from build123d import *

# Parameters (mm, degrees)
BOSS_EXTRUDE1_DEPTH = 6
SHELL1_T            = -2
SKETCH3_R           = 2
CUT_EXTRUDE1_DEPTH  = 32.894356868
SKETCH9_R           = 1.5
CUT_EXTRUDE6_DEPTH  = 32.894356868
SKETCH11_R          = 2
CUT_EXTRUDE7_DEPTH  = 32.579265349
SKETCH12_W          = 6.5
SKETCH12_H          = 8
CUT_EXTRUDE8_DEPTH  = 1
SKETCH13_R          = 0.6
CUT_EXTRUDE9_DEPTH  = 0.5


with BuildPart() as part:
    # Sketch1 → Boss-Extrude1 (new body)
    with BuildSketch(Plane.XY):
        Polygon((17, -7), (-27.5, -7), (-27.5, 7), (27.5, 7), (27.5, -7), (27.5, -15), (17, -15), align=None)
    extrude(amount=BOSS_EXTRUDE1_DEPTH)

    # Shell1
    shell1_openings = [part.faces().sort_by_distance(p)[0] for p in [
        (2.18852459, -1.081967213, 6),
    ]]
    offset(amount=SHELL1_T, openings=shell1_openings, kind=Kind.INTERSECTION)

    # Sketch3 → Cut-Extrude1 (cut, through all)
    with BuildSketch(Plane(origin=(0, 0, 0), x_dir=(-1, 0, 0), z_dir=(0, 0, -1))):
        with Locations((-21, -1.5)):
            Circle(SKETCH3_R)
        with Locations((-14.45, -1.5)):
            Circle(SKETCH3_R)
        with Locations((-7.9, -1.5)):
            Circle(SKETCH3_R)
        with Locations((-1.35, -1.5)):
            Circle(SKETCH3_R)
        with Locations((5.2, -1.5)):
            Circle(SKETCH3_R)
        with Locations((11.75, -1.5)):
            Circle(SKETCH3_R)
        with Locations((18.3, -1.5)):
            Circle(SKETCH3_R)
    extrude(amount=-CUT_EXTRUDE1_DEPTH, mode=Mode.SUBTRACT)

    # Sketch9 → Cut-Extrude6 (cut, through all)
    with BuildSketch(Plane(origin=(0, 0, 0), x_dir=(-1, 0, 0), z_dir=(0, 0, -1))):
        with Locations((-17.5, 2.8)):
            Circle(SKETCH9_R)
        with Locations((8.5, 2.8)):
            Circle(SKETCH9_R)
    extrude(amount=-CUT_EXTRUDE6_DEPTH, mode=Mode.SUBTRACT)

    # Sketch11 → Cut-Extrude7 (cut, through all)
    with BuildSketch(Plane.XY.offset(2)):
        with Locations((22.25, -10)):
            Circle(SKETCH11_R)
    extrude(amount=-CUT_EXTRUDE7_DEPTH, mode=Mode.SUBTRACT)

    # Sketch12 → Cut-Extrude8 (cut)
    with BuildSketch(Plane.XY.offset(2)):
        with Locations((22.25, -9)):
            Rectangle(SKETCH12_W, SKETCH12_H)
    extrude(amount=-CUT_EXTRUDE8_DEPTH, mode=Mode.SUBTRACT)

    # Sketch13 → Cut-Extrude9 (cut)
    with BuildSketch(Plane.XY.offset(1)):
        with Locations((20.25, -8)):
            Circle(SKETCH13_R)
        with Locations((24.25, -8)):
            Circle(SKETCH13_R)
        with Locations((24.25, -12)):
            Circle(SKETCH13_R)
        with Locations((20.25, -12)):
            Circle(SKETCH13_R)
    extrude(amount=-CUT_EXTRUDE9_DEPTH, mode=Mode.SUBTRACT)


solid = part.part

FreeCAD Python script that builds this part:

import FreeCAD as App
import Part
import Sketcher
Q = App.Units.Quantity


def faces_at(feature, points):
    """Names of the faces that lie closest to the given points."""
    faces = feature.Shape.Faces
    near = lambda p: min(range(len(faces)), key=lambda i: faces[i].distToShape(Part.Vertex(*p))[0])
    return sorted({f"Face{near(p) + 1}" for p in points})

doc = App.newDocument("Part")
body = doc.addObject("PartDesign::Body", "Body")

sketch1 = doc.addObject("Sketcher::SketchObject", "Sketch")
body.addObject(sketch1)
sketch1.AttachmentSupport = (doc.XY_Plane, [""])
sketch1.MapMode = "FlatFace"
sketch1.addGeometry(Part.LineSegment(App.Vector(-27.5, -7, 0), App.Vector(17, -7, 0)), False)
sketch1.addGeometry(Part.LineSegment(App.Vector(17, -7, 0), App.Vector(17, -15, 0)), False)
sketch1.addGeometry(Part.LineSegment(App.Vector(17, -15, 0), App.Vector(27.5, -15, 0)), False)
sketch1.addGeometry(Part.LineSegment(App.Vector(27.5, -15, 0), App.Vector(27.5, 7, 0)), False)
sketch1.addGeometry(Part.LineSegment(App.Vector(27.5, 7, 0), App.Vector(-27.5, 7, 0)), False)
sketch1.addGeometry(Part.LineSegment(App.Vector(-27.5, 7, 0), App.Vector(-27.5, -7, 0)), False)
sketch1.addConstraint(Sketcher.Constraint("Coincident", 0, 2, 1, 1))
sketch1.addConstraint(Sketcher.Constraint("Coincident", 1, 2, 2, 1))
sketch1.addConstraint(Sketcher.Constraint("Coincident", 2, 2, 3, 1))
sketch1.addConstraint(Sketcher.Constraint("Coincident", 3, 2, 4, 1))
sketch1.addConstraint(Sketcher.Constraint("Coincident", 4, 2, 5, 1))
sketch1.addConstraint(Sketcher.Constraint("Coincident", 5, 2, 0, 1))
sketch1.addConstraint(Sketcher.Constraint("Horizontal", 0))
sketch1.addConstraint(Sketcher.Constraint("Vertical", 1))
sketch1.addConstraint(Sketcher.Constraint("Horizontal", 2))
sketch1.addConstraint(Sketcher.Constraint("Vertical", 3))
sketch1.addConstraint(Sketcher.Constraint("Horizontal", 4))
sketch1.addConstraint(Sketcher.Constraint("Vertical", 5))
sketch1.addConstraint(Sketcher.Constraint("Symmetric", 3, 2, 5, 2, -1, 1))
sketch1.addConstraint(Sketcher.Constraint("DistanceX", 4, 2, 4, 1, Q("55 mm")))
sketch1.addConstraint(Sketcher.Constraint("DistanceY", 1, 2, 1, 1, Q("8 mm")))
sketch1.addConstraint(Sketcher.Constraint("DistanceY", 3, 1, 3, 2, Q("22 mm")))
sketch1.addConstraint(Sketcher.Constraint("DistanceX", 0, 1, 0, 2, Q("44.5 mm")))
pad1 = doc.addObject("PartDesign::Pad", "Pad")
body.addObject(pad1)
pad1.Profile = sketch1
pad1.Length = 6
doc.recompute()

thickness = doc.addObject("PartDesign::Thickness", "Thickness")
body.addObject(thickness)
thickness.Base = (pad1, faces_at(pad1, [(0, -4, 6)]))
thickness.Value = 2
thickness.Reversed = True
thickness.Join = "Intersection"

sketch2 = doc.addObject("Sketcher::SketchObject", "Sketch001")
body.addObject(sketch2)
sketch2.AttachmentSupport = (doc.XY_Plane, [""])
sketch2.MapMode = "FlatFace"
sketch2.addGeometry(Part.Circle(App.Vector(21, -1.5, 0), App.Vector(0, 0, 1), 2), False)
sketch2.addGeometry(Part.Circle(App.Vector(14.45, -1.5, 0), App.Vector(0, 0, 1), 2), False)
sketch2.addGeometry(Part.Circle(App.Vector(7.9, -1.5, 0), App.Vector(0, 0, 1), 2), False)
sketch2.addGeometry(Part.Circle(App.Vector(1.35, -1.5, 0), App.Vector(0, 0, 1), 2), False)
sketch2.addGeometry(Part.Circle(App.Vector(-5.2, -1.5, 0), App.Vector(0, 0, 1), 2), False)
sketch2.addGeometry(Part.Circle(App.Vector(-11.75, -1.5, 0), App.Vector(0, 0, 1), 2), False)
sketch2.addGeometry(Part.Circle(App.Vector(-18.3, -1.5, 0), App.Vector(0, 0, 1), 2), False)
sketch2.addConstraint(Sketcher.Constraint("Equal", 0, 1))
sketch2.addConstraint(Sketcher.Constraint("Equal", 1, 2))
sketch2.addConstraint(Sketcher.Constraint("Equal", 2, 3))
sketch2.addConstraint(Sketcher.Constraint("Equal", 3, 4))
sketch2.addConstraint(Sketcher.Constraint("Equal", 4, 5))
sketch2.addConstraint(Sketcher.Constraint("Equal", 5, 6))
sketch2.addConstraint(Sketcher.Constraint("Horizontal", 0, 3, 1, 3))
sketch2.addConstraint(Sketcher.Constraint("Horizontal", 1, 3, 2, 3))
sketch2.addConstraint(Sketcher.Constraint("Horizontal", 2, 3, 3, 3))
sketch2.addConstraint(Sketcher.Constraint("Horizontal", 3, 3, 4, 3))
sketch2.addConstraint(Sketcher.Constraint("Horizontal", 4, 3, 5, 3))
sketch2.addConstraint(Sketcher.Constraint("Horizontal", 5, 3, 6, 3))
sketch2.addConstraint(Sketcher.Constraint("Diameter", 0, Q("4 mm")))
sketch2.addConstraint(Sketcher.Constraint("DistanceX", -1, 1, 0, 3, Q("21 mm")))
sketch2.addConstraint(Sketcher.Constraint("DistanceY", 0, 3, -1, 1, Q("1.5 mm")))
sketch2.addConstraint(Sketcher.Constraint("DistanceX", -1, 1, 2, 3, Q("7.9 mm")))
sketch2.addConstraint(Sketcher.Constraint("DistanceX", 4, 3, -1, 1, Q("5.2 mm")))
sketch2.addConstraint(Sketcher.Constraint("DistanceX", 6, 3, -1, 1, Q("18.3 mm")))
sketch2.addConstraint(Sketcher.Constraint("DistanceX", 3, 3, 1, 3, Q("13.1 mm")))
sketch2.addConstraint(Sketcher.Constraint("DistanceX", 5, 3, 3, 3, Q("13.1 mm")))
sketch2.addConstraint(Sketcher.Constraint("DistanceX", -1, 1, 1, 3, Q("14.45 mm")))
pocket1 = doc.addObject("PartDesign::Pocket", "Pocket")
body.addObject(pocket1)
pocket1.Profile = sketch2
pocket1.Type = "ThroughAll"
pocket1.Reversed = True

sketch3 = doc.addObject("Sketcher::SketchObject", "Sketch002")
body.addObject(sketch3)
sketch3.AttachmentSupport = (doc.XY_Plane, [""])
sketch3.MapMode = "FlatFace"
sketch3.addGeometry(Part.Circle(App.Vector(17.5, 2.8, 0), App.Vector(0, 0, 1), 1.5), False)
sketch3.addGeometry(Part.Circle(App.Vector(-8.5, 2.8, 0), App.Vector(0, 0, 1), 1.5), False)
sketch3.addConstraint(Sketcher.Constraint("Equal", 0, 1))
sketch3.addConstraint(Sketcher.Constraint("Horizontal", 0, 3, 1, 3))
sketch3.addConstraint(Sketcher.Constraint("Diameter", 0, Q("3 mm")))
sketch3.addConstraint(Sketcher.Constraint("DistanceX", 1, 3, 0, 3, Q("26 mm")))
sketch3.addConstraint(Sketcher.Constraint("DistanceX", -1, 1, 0, 3, Q("17.5 mm")))
sketch3.addConstraint(Sketcher.Constraint("DistanceY", -1, 1, 0, 3, Q("2.8 mm")))
pocket2 = doc.addObject("PartDesign::Pocket", "Pocket001")
body.addObject(pocket2)
pocket2.Profile = sketch3
pocket2.Type = "ThroughAll"
pocket2.Reversed = True

sketch4 = doc.addObject("Sketcher::SketchObject", "Sketch003")
body.addObject(sketch4)
sketch4.AttachmentSupport = (doc.XY_Plane, [""])
sketch4.MapMode = "FlatFace"
sketch4.AttachmentOffset = App.Placement(App.Vector(0, 0, 2), App.Rotation())
sketch4.addGeometry(Part.Circle(App.Vector(22.25, -10, 0), App.Vector(0, 0, 1), 2), False)
sketch4.addConstraint(Sketcher.Constraint("Diameter", 0, Q("4 mm")))
sketch4.addConstraint(Sketcher.Constraint("DistanceY", 0, 3, -1, 1, Q("10 mm")))
sketch4.addConstraint(Sketcher.Constraint("DistanceX", -1, 1, 0, 3, Q("22.25 mm")))
pocket3 = doc.addObject("PartDesign::Pocket", "Pocket002")
body.addObject(pocket3)
pocket3.Profile = sketch4
pocket3.Type = "ThroughAll"

sketch5 = doc.addObject("Sketcher::SketchObject", "Sketch004")
body.addObject(sketch5)
sketch5.AttachmentSupport = (doc.XY_Plane, [""])
sketch5.MapMode = "FlatFace"
sketch5.AttachmentOffset = App.Placement(App.Vector(0, 0, 2), App.Rotation())
sketch5.addGeometry(Part.LineSegment(App.Vector(19, -5, 0), App.Vector(19, -13, 0)), False)
sketch5.addGeometry(Part.LineSegment(App.Vector(19, -13, 0), App.Vector(25.5, -13, 0)), False)
sketch5.addGeometry(Part.LineSegment(App.Vector(25.5, -13, 0), App.Vector(25.5, -5, 0)), False)
sketch5.addGeometry(Part.LineSegment(App.Vector(25.5, -5, 0), App.Vector(19, -5, 0)), False)
sketch5.addConstraint(Sketcher.Constraint("Coincident", 0, 2, 1, 1))
sketch5.addConstraint(Sketcher.Constraint("Coincident", 1, 2, 2, 1))
sketch5.addConstraint(Sketcher.Constraint("Coincident", 2, 2, 3, 1))
sketch5.addConstraint(Sketcher.Constraint("Coincident", 3, 2, 0, 1))
sketch5.addConstraint(Sketcher.Constraint("Vertical", 0))
sketch5.addConstraint(Sketcher.Constraint("Horizontal", 1))
sketch5.addConstraint(Sketcher.Constraint("Vertical", 2))
sketch5.addConstraint(Sketcher.Constraint("Horizontal", 3))
sketch5.addConstraint(Sketcher.Constraint("DistanceY", 0, 2, 0, 1, Q("8 mm")))
sketch5.addConstraint(Sketcher.Constraint("DistanceX", 1, 1, 1, 2, Q("6.5 mm")))
sketch5.addConstraint(Sketcher.Constraint("DistanceX", -1, 1, 0, 2, Q("19 mm")))
sketch5.addConstraint(Sketcher.Constraint("DistanceY", 0, 2, -1, 1, Q("13 mm")))
pocket4 = doc.addObject("PartDesign::Pocket", "Pocket003")
body.addObject(pocket4)
pocket4.Profile = sketch5
pocket4.Length = 1

sketch6 = doc.addObject("Sketcher::SketchObject", "Sketch005")
body.addObject(sketch6)
sketch6.AttachmentSupport = (doc.XY_Plane, [""])
sketch6.MapMode = "FlatFace"
sketch6.AttachmentOffset = App.Placement(App.Vector(0, 0, 1), App.Rotation())
sketch6.addGeometry(Part.Circle(App.Vector(20.25, -8, 0), App.Vector(0, 0, 1), 0.6), False)
sketch6.addGeometry(Part.Circle(App.Vector(24.25, -8, 0), App.Vector(0, 0, 1), 0.6), False)
sketch6.addGeometry(Part.Circle(App.Vector(24.25, -12, 0), App.Vector(0, 0, 1), 0.6), False)
sketch6.addGeometry(Part.Circle(App.Vector(20.25, -12, 0), App.Vector(0, 0, 1), 0.6), False)
sketch6.addConstraint(Sketcher.Constraint("Equal", 0, 1))
sketch6.addConstraint(Sketcher.Constraint("Equal", 1, 2))
sketch6.addConstraint(Sketcher.Constraint("Equal", 2, 3))
sketch6.addConstraint(Sketcher.Constraint("Horizontal", 0, 3, 1, 3))
sketch6.addConstraint(Sketcher.Constraint("Horizontal", 2, 3, 3, 3))
sketch6.addConstraint(Sketcher.Constraint("Vertical", 1, 3, 2, 3))
sketch6.addConstraint(Sketcher.Constraint("Vertical", 0, 3, 3, 3))
sketch6.addConstraint(Sketcher.Constraint("Diameter", 0, Q("1.2 mm")))
sketch6.addConstraint(Sketcher.Constraint("DistanceY", 0, 3, -1, 1, Q("8 mm")))
sketch6.addConstraint(Sketcher.Constraint("DistanceY", 2, 3, -1, 1, Q("12 mm")))
sketch6.addConstraint(Sketcher.Constraint("DistanceX", 0, 3, 1, 3, Q("4 mm")))
sketch6.addConstraint(Sketcher.Constraint("DistanceX", -1, 1, 0, 3, Q("20.25 mm")))
pocket5 = doc.addObject("PartDesign::Pocket", "Pocket004")
body.addObject(pocket5)
pocket5.Profile = sketch6
pocket5.Length = 0.5

doc.recompute()
